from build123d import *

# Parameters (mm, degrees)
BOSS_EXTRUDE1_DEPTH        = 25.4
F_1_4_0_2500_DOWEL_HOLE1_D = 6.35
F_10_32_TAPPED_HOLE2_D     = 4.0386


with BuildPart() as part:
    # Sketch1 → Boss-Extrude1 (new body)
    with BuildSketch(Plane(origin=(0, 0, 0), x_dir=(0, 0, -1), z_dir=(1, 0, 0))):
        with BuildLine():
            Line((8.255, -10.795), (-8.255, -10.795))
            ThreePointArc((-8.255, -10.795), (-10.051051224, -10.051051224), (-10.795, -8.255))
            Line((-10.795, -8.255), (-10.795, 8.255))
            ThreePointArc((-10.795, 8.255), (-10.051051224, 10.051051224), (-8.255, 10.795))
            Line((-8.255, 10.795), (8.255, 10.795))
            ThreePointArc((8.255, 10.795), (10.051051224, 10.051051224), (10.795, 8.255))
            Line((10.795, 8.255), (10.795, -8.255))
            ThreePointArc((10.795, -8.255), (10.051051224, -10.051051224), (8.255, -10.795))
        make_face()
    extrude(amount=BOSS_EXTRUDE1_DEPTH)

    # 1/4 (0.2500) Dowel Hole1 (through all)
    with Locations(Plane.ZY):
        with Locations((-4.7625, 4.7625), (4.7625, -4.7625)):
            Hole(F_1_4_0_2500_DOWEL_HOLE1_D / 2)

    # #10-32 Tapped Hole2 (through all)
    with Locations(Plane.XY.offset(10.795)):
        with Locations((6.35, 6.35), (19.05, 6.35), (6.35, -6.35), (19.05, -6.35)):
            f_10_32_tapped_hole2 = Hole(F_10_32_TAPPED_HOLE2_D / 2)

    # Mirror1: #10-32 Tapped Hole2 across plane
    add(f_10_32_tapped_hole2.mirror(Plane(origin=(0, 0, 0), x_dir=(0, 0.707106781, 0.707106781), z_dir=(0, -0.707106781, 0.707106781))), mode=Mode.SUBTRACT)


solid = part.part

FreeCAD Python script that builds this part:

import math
import FreeCAD as App
import Part
import Sketcher
Q = App.Units.Quantity

doc = App.newDocument("Part")
body = doc.addObject("PartDesign::Body", "Body")

# Sketch on YZ plane
sketch1 = body.newObject("Sketcher::SketchObject", "Sketch")
sketch1.AttachmentSupport = (doc.getObject("YZ_Plane"), [""])
sketch1.MapMode = "FlatFace"
sketch1.addGeometry(Part.LineSegment(App.Vector(-10.8, 8.3, 0), App.Vector(-10.8, -8.3, 0)), False)
sketch1.addGeometry(Part.ArcOfCircle(Part.Circle(App.Vector(-8.3, -8.3, 0), App.Vector(0, 0, 1), 2.5), math.radians(-180), math.radians(-90)), False)
sketch1.addGeometry(Part.LineSegment(App.Vector(-8.3, -10.8, 0), App.Vector(8.3, -10.8, 0)), False)
sketch1.addGeometry(Part.ArcOfCircle(Part.Circle(App.Vector(8.3, -8.3, 0), App.Vector(0, 0, 1), 2.5), math.radians(-90), math.radians(0)), False)
sketch1.addGeometry(Part.LineSegment(App.Vector(10.8, -8.3, 0), App.Vector(10.8, 8.3, 0)), False)
sketch1.addGeometry(Part.ArcOfCircle(Part.Circle(App.Vector(8.3, 8.3, 0), App.Vector(0, 0, 1), 2.5), math.radians(0), math.radians(90)), False)
sketch1.addGeometry(Part.LineSegment(App.Vector(8.3, 10.8, 0), App.Vector(-8.3, 10.8, 0)), False)
sketch1.addGeometry(Part.ArcOfCircle(Part.Circle(App.Vector(-8.3, 8.3, 0), App.Vector(0, 0, 1), 2.5), math.radians(90), math.radians(180)), False)
sketch1.addConstraint(Sketcher.Constraint("Tangent", 0, 2, 1, 1))
sketch1.addConstraint(Sketcher.Constraint("Tangent", 1, 2, 2, 1))
sketch1.addConstraint(Sketcher.Constraint("Tangent", 2, 2, 3, 1))
sketch1.addConstraint(Sketcher.Constraint("Tangent", 3, 2, 4, 1))
sketch1.addConstraint(Sketcher.Constraint("Tangent", 4, 2, 5, 1))
sketch1.addConstraint(Sketcher.Constraint("Tangent", 5, 2, 6, 1))
sketch1.addConstraint(Sketcher.Constraint("Tangent", 6, 2, 7, 1))
sketch1.addConstraint(Sketcher.Constraint("Tangent", 7, 2, 0, 1))
sketch1.addConstraint(Sketcher.Constraint("Vertical", 0))
sketch1.addConstraint(Sketcher.Constraint("Horizontal", 2))
sketch1.addConstraint(Sketcher.Constraint("Vertical", 4))
sketch1.addConstraint(Sketcher.Constraint("Horizontal", 6))
sketch1.addConstraint(Sketcher.Constraint("Equal", 1, 3))
sketch1.addConstraint(Sketcher.Constraint("Equal", 3, 5))
sketch1.addConstraint(Sketcher.Constraint("Equal", 5, 7))
sketch1.addConstraint(Sketcher.Constraint("Symmetric", 1, 3, 5, 3, -1, 1))
sketch1.addConstraint(Sketcher.Constraint("Equal", 6, 0))
sketch1.addConstraint(Sketcher.Constraint("Radius", 1, Q("0.1 in")))
sketch1.addConstraint(Sketcher.Constraint("DistanceX", 2, 1, 2, 2, Q("0.65 in")))
pad1 = body.newObject("PartDesign::Pad", "Pad")
pad1.Profile = sketch1
pad1.Length = Q("1 in")

# Sketch on YZ plane
sketch2 = body.newObject("Sketcher::SketchObject", "Sketch001")
sketch2.AttachmentSupport = (doc.getObject("YZ_Plane"), [""])
sketch2.MapMode = "FlatFace"
sketch2.addGeometry(Part.Circle(App.Vector(4.8, -4.8, 0), App.Vector(0, 0, 1), 3.2), False)
sketch2.addGeometry(Part.Circle(App.Vector(-4.8, 4.8, 0), App.Vector(0, 0, 1), 3.2), False)
sketch2.addConstraint(Sketcher.Constraint("Equal", 0, 1))
sketch2.addConstraint(Sketcher.Constraint("Symmetric", 0, 3, 1, 3, -1, 1))
sketch2.addConstraint(Sketcher.Constraint("Diameter", 0, Q("0.25 in")))
sketch2.addConstraint(Sketcher.Constraint("DistanceX", -1, 1, 0, 3, Q("0.1875 in")))
sketch2.addConstraint(Sketcher.Constraint("DistanceY", 0, 3, -1, 1, Q("0.1875 in")))
doc.recompute()
hole = body.newObject("PartDesign::Hole", "Hole")
hole.Profile = sketch2
hole.ThreadType = "None"
hole.Diameter = Q("0.25 in")
hole.DepthType = "ThroughAll"
hole.Reversed = True

# Sketch on XY plane
sketch3 = body.newObject("Sketcher::SketchObject", "Sketch002")
sketch3.AttachmentSupport = (doc.getObject("XY_Plane"), [""])
sketch3.MapMode = "FlatFace"
sketch3.AttachmentOffset = App.Placement(App.Vector(0, 0, 0.425 * 25.4), App.Rotation())
sketch3.addGeometry(Part.Circle(App.Vector(6.3, 6.3, 0), App.Vector(0, 0, 1), 2), False)
sketch3.addGeometry(Part.Circle(App.Vector(19.1, 6.3, 0), App.Vector(0, 0, 1), 2), False)
sketch3.addGeometry(Part.Circle(App.Vector(6.3, -6.3, 0), App.Vector(0, 0, 1), 2), False)
sketch3.addGeometry(Part.Circle(App.Vector(19.1, -6.3, 0), App.Vector(0, 0, 1), 2), False)
sketch3.addConstraint(Sketcher.Constraint("Equal", 0, 1))
sketch3.addConstraint(Sketcher.Constraint("Equal", 1, 2))
sketch3.addConstraint(Sketcher.Constraint("Equal", 2, 3))
sketch3.addConstraint(Sketcher.Constraint("Symmetric", 0, 3, 2, 3, -1))
sketch3.addConstraint(Sketcher.Constraint("Symmetric", 1, 3, 3, 3, -1))
sketch3.addConstraint(Sketcher.Constraint("Horizontal", 0, 3, 1, 3))
sketch3.addConstraint(Sketcher.Constraint("Diameter", 0, Q("0.159 in")))
sketch3.addConstraint(Sketcher.Constraint("DistanceX", 0, 3, 1, 3, Q("0.5 in")))
sketch3.addConstraint(Sketcher.Constraint("DistanceY", 2, 3, 0, 3, Q("0.5 in")))
sketch3.addConstraint(Sketcher.Constraint("DistanceX", -1, 1, 0, 3, Q("0.25 in")))
doc.recompute()
hole2 = body.newObject("PartDesign::Hole", "Hole001")
hole2.Profile = sketch3
hole2.ThreadType = "None"
hole2.Diameter = Q("0.159 in")
hole2.DepthType = "ThroughAll"
doc.recompute()

datumplane = body.newObject("PartDesign::Plane", "DatumPlane")
datumplane.Placement = App.Placement(App.Vector(0, 0, 0), App.Rotation(App.Vector(0, 0.707106781, 0.707106781), App.Vector(-1, 0, 0), App.Vector(0, -0.707106781, 0.707106781), "ZXY"))
mirrored = body.newObject("PartDesign::Mirrored", "Mirrored")
mirrored.Originals = [hole2]
mirrored.MirrorPlane = (datumplane, [""])
body.Tip = mirrored

doc.recompute()
